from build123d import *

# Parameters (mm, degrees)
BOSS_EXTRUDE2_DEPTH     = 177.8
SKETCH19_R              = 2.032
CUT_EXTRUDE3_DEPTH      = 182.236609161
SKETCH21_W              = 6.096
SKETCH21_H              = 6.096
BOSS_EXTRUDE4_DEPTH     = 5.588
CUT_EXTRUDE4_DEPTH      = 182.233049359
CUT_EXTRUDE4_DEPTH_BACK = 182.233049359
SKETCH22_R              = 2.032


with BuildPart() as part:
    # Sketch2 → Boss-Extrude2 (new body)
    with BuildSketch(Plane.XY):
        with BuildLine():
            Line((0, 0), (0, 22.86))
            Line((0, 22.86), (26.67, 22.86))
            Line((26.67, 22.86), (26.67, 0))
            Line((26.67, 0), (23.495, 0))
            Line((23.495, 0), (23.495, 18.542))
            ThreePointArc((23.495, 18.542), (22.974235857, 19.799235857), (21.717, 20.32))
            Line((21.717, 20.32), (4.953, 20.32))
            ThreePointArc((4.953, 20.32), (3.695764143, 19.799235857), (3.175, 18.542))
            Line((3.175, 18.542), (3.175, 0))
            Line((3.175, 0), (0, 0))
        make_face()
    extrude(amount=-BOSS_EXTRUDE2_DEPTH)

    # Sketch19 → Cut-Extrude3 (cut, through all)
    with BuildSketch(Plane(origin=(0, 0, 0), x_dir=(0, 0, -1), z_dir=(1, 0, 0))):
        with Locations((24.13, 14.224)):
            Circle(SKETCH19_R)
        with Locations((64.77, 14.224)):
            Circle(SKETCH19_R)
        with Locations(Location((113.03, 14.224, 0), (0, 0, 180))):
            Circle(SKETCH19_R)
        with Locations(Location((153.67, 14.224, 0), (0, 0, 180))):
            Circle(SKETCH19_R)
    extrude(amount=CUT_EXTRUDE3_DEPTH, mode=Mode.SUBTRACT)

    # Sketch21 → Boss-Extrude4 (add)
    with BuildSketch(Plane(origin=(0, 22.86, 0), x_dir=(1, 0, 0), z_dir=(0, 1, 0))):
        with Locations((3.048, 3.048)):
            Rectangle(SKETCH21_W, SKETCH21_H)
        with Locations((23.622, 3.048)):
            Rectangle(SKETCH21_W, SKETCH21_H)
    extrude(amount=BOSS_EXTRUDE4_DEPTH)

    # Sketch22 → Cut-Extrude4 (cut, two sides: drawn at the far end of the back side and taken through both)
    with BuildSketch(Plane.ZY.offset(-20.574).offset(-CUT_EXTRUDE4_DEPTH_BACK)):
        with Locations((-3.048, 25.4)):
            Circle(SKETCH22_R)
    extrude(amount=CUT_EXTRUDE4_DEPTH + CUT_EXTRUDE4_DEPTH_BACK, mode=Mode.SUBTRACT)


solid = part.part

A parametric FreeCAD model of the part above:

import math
import FreeCAD as App
import Part
import Sketcher

V = App.Vector
Q = App.Units.Quantity

doc = App.newDocument("Part")
body = doc.addObject("PartDesign::Body", "Body")

# Sketch on XY plane
sketch1 = doc.addObject("Sketcher::SketchObject", "Sketch")
body.addObject(sketch1)
sketch1.AttachmentSupport = (doc.XY_Plane, [""])
sketch1.MapMode = "FlatFace"
sketch1.addGeometry([
    Part.LineSegment(V(0, 22.9, 0), V(0, 0, 0)),  # 0
    Part.LineSegment(V(0, 0, 0), V(3.2, 0, 0)),  # 1
    Part.LineSegment(V(3.2, 0, 0), V(3.2, 18.5, 0)),  # 2
    Part.ArcOfCircle(Part.Circle(V(5, 18.5, 0), V(0, 0, 1), 1.8), math.radians(90), math.radians(180)),  # 3
    Part.LineSegment(V(5, 20.3, 0), V(21.7, 20.3, 0)),  # 4
    Part.ArcOfCircle(Part.Circle(V(21.7, 18.5, 0), V(0, 0, 1), 1.8), math.radians(0), math.radians(90)),  # 5
    Part.LineSegment(V(23.5, 18.5, 0), V(23.5, 0, 0)),  # 6
    Part.LineSegment(V(23.5, 0, 0), V(26.7, 0, 0)),  # 7
    Part.LineSegment(V(26.7, 0, 0), V(26.7, 22.9, 0)),  # 8
    Part.LineSegment(V(26.7, 22.9, 0), V(0, 22.9, 0)),  # 9
], False)
sketch1.addConstraint([
    Sketcher.Constraint("Coincident", 0, 2, 1, 1),
    Sketcher.Constraint("Coincident", 1, 2, 2, 1),
    Sketcher.Constraint("Tangent", 2, 2, 3, 2),
    Sketcher.Constraint("Tangent", 3, 1, 4, 1),
    Sketcher.Constraint("Tangent", 4, 2, 5, 2),
    Sketcher.Constraint("Tangent", 5, 1, 6, 1),
    Sketcher.Constraint("Coincident", 6, 2, 7, 1),
    Sketcher.Constraint("Coincident", 7, 2, 8, 1),
    Sketcher.Constraint("Coincident", 8, 2, 9, 1),
    Sketcher.Constraint("Coincident", 9, 2, 0, 1),
    Sketcher.Constraint("Vertical", 0),
    Sketcher.Constraint("Horizontal", 1),
    Sketcher.Constraint("Vertical", 2),
    Sketcher.Constraint("Horizontal", 4),
    Sketcher.Constraint("Vertical", 6),
    Sketcher.Constraint("Horizontal", 7),
    Sketcher.Constraint("Vertical", 8),
    Sketcher.Constraint("Horizontal", 9),
    Sketcher.Constraint("Coincident", 0, 2, -1, 1),
    Sketcher.Constraint("Equal", 3, 5),
    Sketcher.Constraint("PointOnObject", 6, 2, -1),
    Sketcher.Constraint("Equal", 1, 7),
    Sketcher.Constraint("Radius", 3, Q("0.07 in")),
    Sketcher.Constraint("DistanceY", 0, 2, 0, 1, Q("0.9 in")),
    Sketcher.Constraint("DistanceX", 4, 1, 4, 2, Q("0.66 in")),
    Sketcher.Constraint("DistanceX", 9, 2, 9, 1, Q("1.05 in")),
    Sketcher.Constraint("DistanceY", 2, 1, 2, 2, Q("0.73 in")),
])
pad1 = doc.addObject("PartDesign::Pad", "Pad")
body.addObject(pad1)
pad1.Profile = sketch1
pad1.Length = Q("7 in")
pad1.Reversed = True

# Sketch on YZ plane
sketch2 = doc.addObject("Sketcher::SketchObject", "Sketch001")
body.addObject(sketch2)
sketch2.AttachmentSupport = (doc.YZ_Plane, [""])
sketch2.MapMode = "FlatFace"
sketch2.addGeometry([
    Part.Circle(V(14.2, -24.1, 0), V(0, 0, 1), 2),
    Part.Circle(V(14.2, -64.8, 0), V(0, 0, 1), 2),
    Part.Circle(V(14.2, -113, 0), V(0, 0, 1), 2),
    Part.Circle(V(14.2, -153.7, 0), V(0, 0, 1), 2),
], False)
sketch2.addConstraint([
    Sketcher.Constraint("Equal", 0, 1),
    Sketcher.Constraint("Equal", 1, 2),
    Sketcher.Constraint("Equal", 2, 3),
    Sketcher.Constraint("Vertical", 0, 3, 1, 3),
    Sketcher.Constraint("Vertical", 1, 3, 2, 3),
    Sketcher.Constraint("Vertical", 2, 3, 3, 3),
    Sketcher.Constraint("Diameter", 0, Q("0.16 in")),
    Sketcher.Constraint("DistanceY", 1, 3, 0, 3, Q("1.6 in")),
    Sketcher.Constraint("DistanceY", 2, 3, 1, 3, Q("1.9 in")),
    Sketcher.Constraint("DistanceY", 3, 3, 2, 3, Q("1.6 in")),
    Sketcher.Constraint("DistanceX", -1, 1, 0, 3, Q("0.56 in")),
    Sketcher.Constraint("DistanceY", 0, 3, -1, 1, Q("0.95 in")),
])
pocket1 = doc.addObject("PartDesign::Pocket", "Pocket")
body.addObject(pocket1)
pocket1.Profile = sketch2
pocket1.Type = "ThroughAll"
pocket1.Reversed = True

# Sketch on XZ plane
sketch3 = doc.addObject("Sketcher::SketchObject", "Sketch002")
body.addObject(sketch3)
sketch3.AttachmentSupport = (doc.XZ_Plane, [""])
sketch3.MapMode = "FlatFace"
sketch3.AttachmentOffset = App.Placement(V(0, 0, -0.9 * 25.4), App.Rotation())
sketch3.addGeometry([
    Part.LineSegment(V(0, -6, 0), V(0, 0, 0)),  # 0
    Part.LineSegment(V(0, 0, 0), V(6, 0, 0)),  # 1
    Part.LineSegment(V(6, 0, 0), V(6, -6, 0)),  # 2
    Part.LineSegment(V(6, -6, 0), V(0, -6, 0)),  # 3
    Part.LineSegment(V(21, -6, 0), V(21, 0, 0)),  # 4
    Part.LineSegment(V(21, 0, 0), V(27, 0, 0)),  # 5
    Part.LineSegment(V(27, 0, 0), V(27, -6, 0)),  # 6
    Part.LineSegment(V(27, -6, 0), V(21, -6, 0)),  # 7
], False)
sketch3.addConstraint([
    Sketcher.Constraint("Coincident", 0, 2, 1, 1),
    Sketcher.Constraint("Coincident", 1, 2, 2, 1),
    Sketcher.Constraint("Coincident", 2, 2, 3, 1),
    Sketcher.Constraint("Coincident", 3, 2, 0, 1),
    Sketcher.Constraint("Coincident", 4, 2, 5, 1),
    Sketcher.Constraint("Coincident", 5, 2, 6, 1),
    Sketcher.Constraint("Coincident", 6, 2, 7, 1),
    Sketcher.Constraint("Coincident", 7, 2, 4, 1),
    Sketcher.Constraint("Vertical", 0),
    Sketcher.Constraint("Horizontal", 1),
    Sketcher.Constraint("Vertical", 2),
    Sketcher.Constraint("Horizontal", 3),
    Sketcher.Constraint("Vertical", 4),
    Sketcher.Constraint("Horizontal", 5),
    Sketcher.Constraint("Vertical", 6),
    Sketcher.Constraint("Horizontal", 7),
    Sketcher.Constraint("Coincident", 0, 2, -1, 1),
    Sketcher.Constraint("PointOnObject", 4, 2, -1),
    Sketcher.Constraint("Horizontal", 3, 2, 6, 2),
    Sketcher.Constraint("Equal", 3, 5),
    Sketcher.Constraint("Equal", 7, 0),
    Sketcher.Constraint("DistanceX", 1, 1, 1, 2, Q("0.24 in")),
    Sketcher.Constraint("DistanceX", -1, 1, 4, 2, Q("0.81 in")),
])
pad2 = doc.addObject("PartDesign::Pad", "Pad001")
body.addObject(pad2)
pad2.Profile = sketch3
pad2.Length = Q("0.22 in")
pad2.Reversed = True

# Sketch on YZ plane
sketch4 = doc.addObject("Sketcher::SketchObject", "Sketch003")
body.addObject(sketch4)
sketch4.AttachmentSupport = (doc.YZ_Plane, [""])
sketch4.MapMode = "FlatFace"
sketch4.AttachmentOffset = App.Placement(V(0, 0, 0.81 * 25.4), App.Rotation())
sketch4.addGeometry(Part.Circle(V(25.4, -3, 0), V(0, 0, 1), 2), False)
sketch4.addConstraint([
    Sketcher.Constraint("Diameter", 0, Q("0.16 in")),
    Sketcher.Constraint("DistanceX", -1, 1, 0, 3, Q("1 in")),
    Sketcher.Constraint("DistanceY", 0, 3, -1, 1, Q("0.12 in")),
])
pocket2 = doc.addObject("PartDesign::Pocket", "Pocket001")
body.addObject(pocket2)
pocket2.Profile = sketch4
pocket2.Type = "ThroughAll"
pocket2.Midplane = True

doc.recompute()
